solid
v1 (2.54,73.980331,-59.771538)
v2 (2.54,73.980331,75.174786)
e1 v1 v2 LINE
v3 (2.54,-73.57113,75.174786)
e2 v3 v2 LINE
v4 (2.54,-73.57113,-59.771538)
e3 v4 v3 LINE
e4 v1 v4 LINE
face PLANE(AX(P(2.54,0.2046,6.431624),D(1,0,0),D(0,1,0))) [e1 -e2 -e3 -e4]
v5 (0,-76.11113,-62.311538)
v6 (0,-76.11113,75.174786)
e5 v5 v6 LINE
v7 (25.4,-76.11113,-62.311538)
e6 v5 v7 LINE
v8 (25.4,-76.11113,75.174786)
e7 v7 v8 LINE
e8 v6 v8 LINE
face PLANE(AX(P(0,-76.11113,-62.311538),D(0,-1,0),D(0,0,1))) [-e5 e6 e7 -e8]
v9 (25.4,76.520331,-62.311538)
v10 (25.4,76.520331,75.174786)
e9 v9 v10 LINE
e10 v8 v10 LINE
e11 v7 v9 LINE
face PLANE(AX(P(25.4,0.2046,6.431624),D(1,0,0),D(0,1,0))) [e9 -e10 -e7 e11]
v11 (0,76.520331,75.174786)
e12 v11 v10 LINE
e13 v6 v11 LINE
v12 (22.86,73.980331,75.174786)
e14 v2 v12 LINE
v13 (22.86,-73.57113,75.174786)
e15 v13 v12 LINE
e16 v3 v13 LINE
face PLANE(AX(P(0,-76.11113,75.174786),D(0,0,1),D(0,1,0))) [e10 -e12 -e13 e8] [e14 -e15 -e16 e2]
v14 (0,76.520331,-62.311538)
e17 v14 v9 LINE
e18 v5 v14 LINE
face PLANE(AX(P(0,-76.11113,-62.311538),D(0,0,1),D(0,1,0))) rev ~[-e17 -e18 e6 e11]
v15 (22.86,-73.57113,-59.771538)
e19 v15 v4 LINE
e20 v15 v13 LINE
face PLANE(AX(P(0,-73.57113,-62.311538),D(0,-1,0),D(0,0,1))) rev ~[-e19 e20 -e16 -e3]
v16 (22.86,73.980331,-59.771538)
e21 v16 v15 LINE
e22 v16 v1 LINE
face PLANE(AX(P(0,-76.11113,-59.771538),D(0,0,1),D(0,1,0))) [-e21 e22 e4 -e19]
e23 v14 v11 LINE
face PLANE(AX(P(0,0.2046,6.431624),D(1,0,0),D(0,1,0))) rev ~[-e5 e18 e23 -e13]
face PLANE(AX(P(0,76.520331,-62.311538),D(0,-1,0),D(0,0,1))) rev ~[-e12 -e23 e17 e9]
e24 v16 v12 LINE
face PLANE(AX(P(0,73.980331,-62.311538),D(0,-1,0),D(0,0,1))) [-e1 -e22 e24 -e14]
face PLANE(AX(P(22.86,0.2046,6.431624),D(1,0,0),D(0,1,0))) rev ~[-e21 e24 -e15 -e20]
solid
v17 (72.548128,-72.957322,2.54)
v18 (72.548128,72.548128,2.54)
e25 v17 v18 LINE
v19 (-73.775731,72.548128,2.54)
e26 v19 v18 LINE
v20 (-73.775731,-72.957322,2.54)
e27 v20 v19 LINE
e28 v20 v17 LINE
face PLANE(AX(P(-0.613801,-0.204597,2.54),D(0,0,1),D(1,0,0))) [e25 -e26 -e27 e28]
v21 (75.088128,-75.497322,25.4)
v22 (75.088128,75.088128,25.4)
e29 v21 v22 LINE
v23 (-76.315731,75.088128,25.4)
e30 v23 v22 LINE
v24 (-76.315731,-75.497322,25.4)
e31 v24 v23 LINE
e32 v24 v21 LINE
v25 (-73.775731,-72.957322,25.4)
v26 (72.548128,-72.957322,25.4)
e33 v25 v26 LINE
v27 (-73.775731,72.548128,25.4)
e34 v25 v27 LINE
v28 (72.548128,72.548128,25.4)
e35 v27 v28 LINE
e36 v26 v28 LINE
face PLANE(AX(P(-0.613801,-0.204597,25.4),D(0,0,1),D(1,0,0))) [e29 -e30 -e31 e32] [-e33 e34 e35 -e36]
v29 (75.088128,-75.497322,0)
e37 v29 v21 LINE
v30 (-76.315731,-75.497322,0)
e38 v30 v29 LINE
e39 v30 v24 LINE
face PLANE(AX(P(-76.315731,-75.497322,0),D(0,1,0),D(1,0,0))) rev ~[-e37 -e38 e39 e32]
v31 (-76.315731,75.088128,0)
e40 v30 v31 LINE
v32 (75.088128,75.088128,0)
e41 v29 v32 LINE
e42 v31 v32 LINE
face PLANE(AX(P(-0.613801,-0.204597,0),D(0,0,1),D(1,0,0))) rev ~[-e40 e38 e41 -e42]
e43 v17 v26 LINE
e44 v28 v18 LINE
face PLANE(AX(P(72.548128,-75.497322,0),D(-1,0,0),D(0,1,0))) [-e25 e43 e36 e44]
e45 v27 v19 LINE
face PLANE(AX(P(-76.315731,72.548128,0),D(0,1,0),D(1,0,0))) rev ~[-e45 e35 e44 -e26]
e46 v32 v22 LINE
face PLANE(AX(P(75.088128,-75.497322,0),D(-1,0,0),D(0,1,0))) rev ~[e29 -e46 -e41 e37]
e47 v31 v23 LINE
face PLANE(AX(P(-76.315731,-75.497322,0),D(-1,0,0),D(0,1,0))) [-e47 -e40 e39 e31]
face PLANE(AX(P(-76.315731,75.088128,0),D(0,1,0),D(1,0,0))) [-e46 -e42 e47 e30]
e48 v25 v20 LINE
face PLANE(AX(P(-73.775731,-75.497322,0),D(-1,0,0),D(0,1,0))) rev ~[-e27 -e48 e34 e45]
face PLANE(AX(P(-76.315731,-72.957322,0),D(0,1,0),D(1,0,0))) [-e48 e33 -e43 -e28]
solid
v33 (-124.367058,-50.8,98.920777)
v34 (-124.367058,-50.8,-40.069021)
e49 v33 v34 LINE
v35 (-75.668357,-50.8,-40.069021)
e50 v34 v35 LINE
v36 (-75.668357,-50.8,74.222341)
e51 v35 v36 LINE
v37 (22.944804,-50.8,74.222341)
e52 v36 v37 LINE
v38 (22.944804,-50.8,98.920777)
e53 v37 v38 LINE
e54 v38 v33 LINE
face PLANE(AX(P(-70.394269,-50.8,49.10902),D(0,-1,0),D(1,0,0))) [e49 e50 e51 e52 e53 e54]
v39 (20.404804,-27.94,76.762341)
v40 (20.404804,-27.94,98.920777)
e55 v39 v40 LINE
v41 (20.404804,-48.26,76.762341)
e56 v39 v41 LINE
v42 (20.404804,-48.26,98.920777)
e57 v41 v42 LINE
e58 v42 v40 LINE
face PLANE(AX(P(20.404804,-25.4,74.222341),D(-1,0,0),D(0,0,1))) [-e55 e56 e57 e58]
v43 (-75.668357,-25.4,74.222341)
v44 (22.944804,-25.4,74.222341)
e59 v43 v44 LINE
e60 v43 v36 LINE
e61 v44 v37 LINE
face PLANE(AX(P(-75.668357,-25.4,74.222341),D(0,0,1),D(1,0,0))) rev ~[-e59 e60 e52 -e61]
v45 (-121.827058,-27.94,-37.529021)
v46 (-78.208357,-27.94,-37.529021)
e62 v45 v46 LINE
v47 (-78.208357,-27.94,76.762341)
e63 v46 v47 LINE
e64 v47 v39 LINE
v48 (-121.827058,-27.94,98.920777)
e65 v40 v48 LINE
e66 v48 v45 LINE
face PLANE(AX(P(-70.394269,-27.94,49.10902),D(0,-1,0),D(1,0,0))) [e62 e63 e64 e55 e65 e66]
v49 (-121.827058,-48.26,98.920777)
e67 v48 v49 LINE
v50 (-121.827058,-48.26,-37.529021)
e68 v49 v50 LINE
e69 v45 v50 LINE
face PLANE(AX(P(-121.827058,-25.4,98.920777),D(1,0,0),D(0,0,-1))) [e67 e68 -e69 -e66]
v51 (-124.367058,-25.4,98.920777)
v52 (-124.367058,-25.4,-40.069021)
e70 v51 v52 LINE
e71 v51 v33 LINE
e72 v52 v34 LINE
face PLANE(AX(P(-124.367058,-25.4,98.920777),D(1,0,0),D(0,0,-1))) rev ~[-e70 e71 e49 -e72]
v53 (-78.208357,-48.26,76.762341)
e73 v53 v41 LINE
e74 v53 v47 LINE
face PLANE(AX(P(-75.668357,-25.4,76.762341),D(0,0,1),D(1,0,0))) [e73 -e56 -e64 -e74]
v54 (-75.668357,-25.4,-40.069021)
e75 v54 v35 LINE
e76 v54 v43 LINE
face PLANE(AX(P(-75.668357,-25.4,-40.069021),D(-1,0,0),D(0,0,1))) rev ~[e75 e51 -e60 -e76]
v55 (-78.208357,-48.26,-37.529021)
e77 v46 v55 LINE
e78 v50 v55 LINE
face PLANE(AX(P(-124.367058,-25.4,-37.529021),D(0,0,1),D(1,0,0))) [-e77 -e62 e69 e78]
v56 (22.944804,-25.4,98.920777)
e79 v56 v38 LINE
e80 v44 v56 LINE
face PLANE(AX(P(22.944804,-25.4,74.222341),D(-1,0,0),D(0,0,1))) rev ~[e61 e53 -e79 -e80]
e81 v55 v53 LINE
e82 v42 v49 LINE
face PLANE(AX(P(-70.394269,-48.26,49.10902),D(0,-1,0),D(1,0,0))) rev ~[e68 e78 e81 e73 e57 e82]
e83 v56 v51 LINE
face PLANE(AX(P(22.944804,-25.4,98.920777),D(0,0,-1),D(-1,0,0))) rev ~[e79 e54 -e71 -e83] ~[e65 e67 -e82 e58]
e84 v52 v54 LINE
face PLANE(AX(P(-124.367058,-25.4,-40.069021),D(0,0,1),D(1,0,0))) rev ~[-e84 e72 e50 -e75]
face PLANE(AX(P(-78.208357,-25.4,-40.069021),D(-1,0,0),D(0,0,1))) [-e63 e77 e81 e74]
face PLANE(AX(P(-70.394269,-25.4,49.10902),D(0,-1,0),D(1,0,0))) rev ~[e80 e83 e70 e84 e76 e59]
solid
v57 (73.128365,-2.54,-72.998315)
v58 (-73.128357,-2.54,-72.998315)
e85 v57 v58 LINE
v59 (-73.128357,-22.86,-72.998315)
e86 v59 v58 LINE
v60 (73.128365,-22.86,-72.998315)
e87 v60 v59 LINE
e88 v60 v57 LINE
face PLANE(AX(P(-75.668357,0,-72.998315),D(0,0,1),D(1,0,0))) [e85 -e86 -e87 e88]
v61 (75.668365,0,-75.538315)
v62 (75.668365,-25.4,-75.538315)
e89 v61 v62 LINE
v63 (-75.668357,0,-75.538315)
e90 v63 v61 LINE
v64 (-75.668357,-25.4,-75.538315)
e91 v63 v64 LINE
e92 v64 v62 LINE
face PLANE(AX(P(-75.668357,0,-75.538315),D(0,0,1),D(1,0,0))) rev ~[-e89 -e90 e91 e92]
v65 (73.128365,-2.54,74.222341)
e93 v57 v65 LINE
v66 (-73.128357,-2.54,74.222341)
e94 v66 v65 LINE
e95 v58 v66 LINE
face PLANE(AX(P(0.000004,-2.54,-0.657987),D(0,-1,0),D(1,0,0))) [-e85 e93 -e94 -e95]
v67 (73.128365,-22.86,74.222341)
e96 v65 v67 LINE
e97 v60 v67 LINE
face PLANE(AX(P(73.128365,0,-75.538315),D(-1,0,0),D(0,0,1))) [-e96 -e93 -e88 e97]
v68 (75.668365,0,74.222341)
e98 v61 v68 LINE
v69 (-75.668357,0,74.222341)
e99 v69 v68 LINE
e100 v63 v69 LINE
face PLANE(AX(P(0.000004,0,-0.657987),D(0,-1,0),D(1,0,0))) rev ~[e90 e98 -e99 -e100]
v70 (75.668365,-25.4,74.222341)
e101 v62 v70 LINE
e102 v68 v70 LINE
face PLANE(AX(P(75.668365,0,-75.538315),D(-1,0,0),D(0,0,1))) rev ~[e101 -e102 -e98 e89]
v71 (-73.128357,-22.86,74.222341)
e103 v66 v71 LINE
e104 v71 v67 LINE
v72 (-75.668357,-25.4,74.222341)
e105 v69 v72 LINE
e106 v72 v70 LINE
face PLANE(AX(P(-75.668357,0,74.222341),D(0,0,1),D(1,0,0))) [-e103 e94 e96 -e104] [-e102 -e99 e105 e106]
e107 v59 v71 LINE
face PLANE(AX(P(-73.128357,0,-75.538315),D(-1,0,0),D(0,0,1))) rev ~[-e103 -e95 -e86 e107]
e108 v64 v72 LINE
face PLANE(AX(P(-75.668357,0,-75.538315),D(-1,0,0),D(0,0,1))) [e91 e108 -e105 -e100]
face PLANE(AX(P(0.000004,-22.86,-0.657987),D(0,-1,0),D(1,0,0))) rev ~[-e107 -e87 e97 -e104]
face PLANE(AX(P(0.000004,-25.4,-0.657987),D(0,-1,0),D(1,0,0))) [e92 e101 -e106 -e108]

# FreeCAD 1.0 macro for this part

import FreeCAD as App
import Part
import Sketcher

V = App.Vector
Q = App.Units.Quantity


def faces_at(feature, points):
    """Names of the faces that lie closest to the given points."""
    faces = feature.Shape.Faces
    near = lambda p: min(range(len(faces)), key=lambda i: faces[i].distToShape(Part.Vertex(*p))[0])
    return sorted({f"Face{near(p) + 1}" for p in points})


def add_polygon(sketch, points):
    """Adds a closed chain of lines whose ends are joined by coincident constraints."""
    first, n = sketch.GeometryCount, len(points)
    for a, b in zip(points, points[1:] + points[:1]):
        sketch.addGeometry(Part.LineSegment(App.Vector(*a, 0), App.Vector(*b, 0)), False)
    for i in range(n):
        sketch.addConstraint(Sketcher.Constraint("Coincident", first + i, 2, first + (i + 1) % n, 1))

doc = App.newDocument("Part")
body = doc.addObject("PartDesign::Body", "Body")

sketch1 = body.newObject("Sketcher::SketchObject", "Sketch")
sketch1.AttachmentSupport = (doc.getObject("XZ_Plane"), [""])
sketch1.MapMode = "FlatFace"
add_polygon(sketch1, [(-75.668357, 74.222341), (-75.668357, -75.538315), (75.668365, -75.538315), (75.668365, 74.222341)])
sketch1.addConstraint([
    Sketcher.Constraint("Vertical", 0),
    Sketcher.Constraint("Horizontal", 1),
    Sketcher.Constraint("Vertical", 2),
    Sketcher.Constraint("Horizontal", 3),
    Sketcher.Constraint("DistanceX", 1, 1, 1, 2, Q("151.336722 mm")),
    Sketcher.Constraint("DistanceY", 0, 2, 0, 1, Q("149.760656 mm")),
    Sketcher.Constraint("DistanceY", -1, 1, 2, 2, Q("74.222341 mm")),
    Sketcher.Constraint("DistanceX", 0, 2, -1, 1, Q("75.668357 mm")),
])
pad1 = body.newObject("PartDesign::Pad", "Pad")
pad1.Profile = sketch1
pad1.Length = Q("1 in")
doc.recompute()

thickness = body.newObject("PartDesign::Thickness", "Thickness")
thickness.Base = (pad1, faces_at(pad1, [(0, -12.7, 74.222)]))
thickness.Value = Q("0.1 in")
thickness.Reversed = True
thickness.Join = "Arc"
body2 = doc.addObject("PartDesign::Body", "Body001")

sketch2 = body2.newObject("Sketcher::SketchObject", "Sketch001")
sketch2.AttachmentSupport = (doc.getObject("XZ_Plane001"), [""])
sketch2.MapMode = "FlatFace"
sketch2.AttachmentOffset = App.Placement(V(0, 0, 1 * 25.4), App.Rotation())
add_polygon(sketch2, [(-124.367058, 98.920777), (-124.367058, -40.069021), (-75.668357, -40.069021), (-75.668357, 74.222341), (22.944804, 74.222341), (22.944804, 98.920777)])
sketch2.addConstraint([
    Sketcher.Constraint("Vertical", 0),
    Sketcher.Constraint("Horizontal", 1),
    Sketcher.Constraint("Vertical", 2),
    Sketcher.Constraint("Horizontal", 3),
    Sketcher.Constraint("Vertical", 4),
    Sketcher.Constraint("Horizontal", 5),
    Sketcher.Constraint("DistanceX", 1, 1, 1, 2, Q("48.698701 mm")),
    Sketcher.Constraint("DistanceY", 0, 2, 0, 1, Q("138.989799 mm")),
    Sketcher.Constraint("DistanceX", 3, 1, 3, 2, Q("98.613162 mm")),
    Sketcher.Constraint("DistanceY", 2, 1, 2, 2, Q("114.291362 mm")),
    Sketcher.Constraint("DistanceX", 0, 2, -1, 1, Q("124.367058 mm")),
    Sketcher.Constraint("DistanceY", 0, 2, -1, 1, Q("40.069021 mm")),
])
pad2 = body2.newObject("PartDesign::Pad", "Pad001")
pad2.Profile = sketch2
pad2.Length = Q("1 in")
doc.recompute()

thickness2 = body2.newObject("PartDesign::Thickness", "Thickness001")
thickness2.Base = (pad2, faces_at(pad2, [(-50.711, -38.1, 98.921)]))
thickness2.Value = Q("0.1 in")
thickness2.Reversed = True
thickness2.Join = "Intersection"
body3 = doc.addObject("PartDesign::Body", "Body002")

sketch3 = body3.newObject("Sketcher::SketchObject", "Sketch002")
sketch3.AttachmentSupport = (doc.getObject("XY_Plane002"), [""])
sketch3.MapMode = "FlatFace"
add_polygon(sketch3, [(-76.315731, 75.088128), (-76.315731, -75.497322), (75.088128, -75.497322), (75.088128, 75.088128)])
sketch3.addConstraint([
    Sketcher.Constraint("Vertical", 0),
    Sketcher.Constraint("Horizontal", 1),
    Sketcher.Constraint("Vertical", 2),
    Sketcher.Constraint("Horizontal", 3),
    Sketcher.Constraint("DistanceX", 1, 1, 1, 2, Q("151.403859 mm")),
    Sketcher.Constraint("DistanceY", 0, 2, 0, 1, Q("150.58545 mm")),
    Sketcher.Constraint("DistanceX", 0, 2, -1, 1, Q("76.315731 mm")),
    Sketcher.Constraint("DistanceY", 0, 2, -1, 1, Q("75.497322 mm")),
])
pad3 = body3.newObject("PartDesign::Pad", "Pad002")
pad3.Profile = sketch3
pad3.Length = Q("1 in")
doc.recompute()

thickness3 = body3.newObject("PartDesign::Thickness", "Thickness002")
thickness3.Base = (pad3, faces_at(pad3, [(-0.614, -0.205, 25.4)]))
thickness3.Value = Q("0.1 in")
thickness3.Reversed = True
thickness3.Join = "Arc"
body4 = doc.addObject("PartDesign::Body", "Body003")

sketch4 = body4.newObject("Sketcher::SketchObject", "Sketch003")
sketch4.AttachmentSupport = (doc.getObject("YZ_Plane003"), [""])
sketch4.MapMode = "FlatFace"
add_polygon(sketch4, [(-76.11113, 75.174786), (-76.11113, -62.311538), (76.520331, -62.311538), (76.520331, 75.174786)])
sketch4.addConstraint([
    Sketcher.Constraint("Vertical", 0),
    Sketcher.Constraint("Horizontal", 1),
    Sketcher.Constraint("Vertical", 2),
    Sketcher.Constraint("Horizontal", 3),
    Sketcher.Constraint("DistanceX", 1, 1, 1, 2, Q("152.631462 mm")),
    Sketcher.Constraint("DistanceY", 0, 2, 0, 1, Q("137.486324 mm")),
    Sketcher.Constraint("DistanceX", 0, 2, -1, 1, Q("76.11113 mm")),
    Sketcher.Constraint("DistanceY", 0, 2, -1, 1, Q("62.311538 mm")),
])
pad4 = body4.newObject("PartDesign::Pad", "Pad003")
pad4.Profile = sketch4
pad4.Length = Q("1 in")
doc.recompute()

thickness4 = body4.newObject("PartDesign::Thickness", "Thickness003")
thickness4.Base = (pad4, faces_at(pad4, [(12.7, 0.205, 75.175)]))
thickness4.Value = Q("0.1 in")
thickness4.Reversed = True
thickness4.Join = "Arc"

doc.recompute()
